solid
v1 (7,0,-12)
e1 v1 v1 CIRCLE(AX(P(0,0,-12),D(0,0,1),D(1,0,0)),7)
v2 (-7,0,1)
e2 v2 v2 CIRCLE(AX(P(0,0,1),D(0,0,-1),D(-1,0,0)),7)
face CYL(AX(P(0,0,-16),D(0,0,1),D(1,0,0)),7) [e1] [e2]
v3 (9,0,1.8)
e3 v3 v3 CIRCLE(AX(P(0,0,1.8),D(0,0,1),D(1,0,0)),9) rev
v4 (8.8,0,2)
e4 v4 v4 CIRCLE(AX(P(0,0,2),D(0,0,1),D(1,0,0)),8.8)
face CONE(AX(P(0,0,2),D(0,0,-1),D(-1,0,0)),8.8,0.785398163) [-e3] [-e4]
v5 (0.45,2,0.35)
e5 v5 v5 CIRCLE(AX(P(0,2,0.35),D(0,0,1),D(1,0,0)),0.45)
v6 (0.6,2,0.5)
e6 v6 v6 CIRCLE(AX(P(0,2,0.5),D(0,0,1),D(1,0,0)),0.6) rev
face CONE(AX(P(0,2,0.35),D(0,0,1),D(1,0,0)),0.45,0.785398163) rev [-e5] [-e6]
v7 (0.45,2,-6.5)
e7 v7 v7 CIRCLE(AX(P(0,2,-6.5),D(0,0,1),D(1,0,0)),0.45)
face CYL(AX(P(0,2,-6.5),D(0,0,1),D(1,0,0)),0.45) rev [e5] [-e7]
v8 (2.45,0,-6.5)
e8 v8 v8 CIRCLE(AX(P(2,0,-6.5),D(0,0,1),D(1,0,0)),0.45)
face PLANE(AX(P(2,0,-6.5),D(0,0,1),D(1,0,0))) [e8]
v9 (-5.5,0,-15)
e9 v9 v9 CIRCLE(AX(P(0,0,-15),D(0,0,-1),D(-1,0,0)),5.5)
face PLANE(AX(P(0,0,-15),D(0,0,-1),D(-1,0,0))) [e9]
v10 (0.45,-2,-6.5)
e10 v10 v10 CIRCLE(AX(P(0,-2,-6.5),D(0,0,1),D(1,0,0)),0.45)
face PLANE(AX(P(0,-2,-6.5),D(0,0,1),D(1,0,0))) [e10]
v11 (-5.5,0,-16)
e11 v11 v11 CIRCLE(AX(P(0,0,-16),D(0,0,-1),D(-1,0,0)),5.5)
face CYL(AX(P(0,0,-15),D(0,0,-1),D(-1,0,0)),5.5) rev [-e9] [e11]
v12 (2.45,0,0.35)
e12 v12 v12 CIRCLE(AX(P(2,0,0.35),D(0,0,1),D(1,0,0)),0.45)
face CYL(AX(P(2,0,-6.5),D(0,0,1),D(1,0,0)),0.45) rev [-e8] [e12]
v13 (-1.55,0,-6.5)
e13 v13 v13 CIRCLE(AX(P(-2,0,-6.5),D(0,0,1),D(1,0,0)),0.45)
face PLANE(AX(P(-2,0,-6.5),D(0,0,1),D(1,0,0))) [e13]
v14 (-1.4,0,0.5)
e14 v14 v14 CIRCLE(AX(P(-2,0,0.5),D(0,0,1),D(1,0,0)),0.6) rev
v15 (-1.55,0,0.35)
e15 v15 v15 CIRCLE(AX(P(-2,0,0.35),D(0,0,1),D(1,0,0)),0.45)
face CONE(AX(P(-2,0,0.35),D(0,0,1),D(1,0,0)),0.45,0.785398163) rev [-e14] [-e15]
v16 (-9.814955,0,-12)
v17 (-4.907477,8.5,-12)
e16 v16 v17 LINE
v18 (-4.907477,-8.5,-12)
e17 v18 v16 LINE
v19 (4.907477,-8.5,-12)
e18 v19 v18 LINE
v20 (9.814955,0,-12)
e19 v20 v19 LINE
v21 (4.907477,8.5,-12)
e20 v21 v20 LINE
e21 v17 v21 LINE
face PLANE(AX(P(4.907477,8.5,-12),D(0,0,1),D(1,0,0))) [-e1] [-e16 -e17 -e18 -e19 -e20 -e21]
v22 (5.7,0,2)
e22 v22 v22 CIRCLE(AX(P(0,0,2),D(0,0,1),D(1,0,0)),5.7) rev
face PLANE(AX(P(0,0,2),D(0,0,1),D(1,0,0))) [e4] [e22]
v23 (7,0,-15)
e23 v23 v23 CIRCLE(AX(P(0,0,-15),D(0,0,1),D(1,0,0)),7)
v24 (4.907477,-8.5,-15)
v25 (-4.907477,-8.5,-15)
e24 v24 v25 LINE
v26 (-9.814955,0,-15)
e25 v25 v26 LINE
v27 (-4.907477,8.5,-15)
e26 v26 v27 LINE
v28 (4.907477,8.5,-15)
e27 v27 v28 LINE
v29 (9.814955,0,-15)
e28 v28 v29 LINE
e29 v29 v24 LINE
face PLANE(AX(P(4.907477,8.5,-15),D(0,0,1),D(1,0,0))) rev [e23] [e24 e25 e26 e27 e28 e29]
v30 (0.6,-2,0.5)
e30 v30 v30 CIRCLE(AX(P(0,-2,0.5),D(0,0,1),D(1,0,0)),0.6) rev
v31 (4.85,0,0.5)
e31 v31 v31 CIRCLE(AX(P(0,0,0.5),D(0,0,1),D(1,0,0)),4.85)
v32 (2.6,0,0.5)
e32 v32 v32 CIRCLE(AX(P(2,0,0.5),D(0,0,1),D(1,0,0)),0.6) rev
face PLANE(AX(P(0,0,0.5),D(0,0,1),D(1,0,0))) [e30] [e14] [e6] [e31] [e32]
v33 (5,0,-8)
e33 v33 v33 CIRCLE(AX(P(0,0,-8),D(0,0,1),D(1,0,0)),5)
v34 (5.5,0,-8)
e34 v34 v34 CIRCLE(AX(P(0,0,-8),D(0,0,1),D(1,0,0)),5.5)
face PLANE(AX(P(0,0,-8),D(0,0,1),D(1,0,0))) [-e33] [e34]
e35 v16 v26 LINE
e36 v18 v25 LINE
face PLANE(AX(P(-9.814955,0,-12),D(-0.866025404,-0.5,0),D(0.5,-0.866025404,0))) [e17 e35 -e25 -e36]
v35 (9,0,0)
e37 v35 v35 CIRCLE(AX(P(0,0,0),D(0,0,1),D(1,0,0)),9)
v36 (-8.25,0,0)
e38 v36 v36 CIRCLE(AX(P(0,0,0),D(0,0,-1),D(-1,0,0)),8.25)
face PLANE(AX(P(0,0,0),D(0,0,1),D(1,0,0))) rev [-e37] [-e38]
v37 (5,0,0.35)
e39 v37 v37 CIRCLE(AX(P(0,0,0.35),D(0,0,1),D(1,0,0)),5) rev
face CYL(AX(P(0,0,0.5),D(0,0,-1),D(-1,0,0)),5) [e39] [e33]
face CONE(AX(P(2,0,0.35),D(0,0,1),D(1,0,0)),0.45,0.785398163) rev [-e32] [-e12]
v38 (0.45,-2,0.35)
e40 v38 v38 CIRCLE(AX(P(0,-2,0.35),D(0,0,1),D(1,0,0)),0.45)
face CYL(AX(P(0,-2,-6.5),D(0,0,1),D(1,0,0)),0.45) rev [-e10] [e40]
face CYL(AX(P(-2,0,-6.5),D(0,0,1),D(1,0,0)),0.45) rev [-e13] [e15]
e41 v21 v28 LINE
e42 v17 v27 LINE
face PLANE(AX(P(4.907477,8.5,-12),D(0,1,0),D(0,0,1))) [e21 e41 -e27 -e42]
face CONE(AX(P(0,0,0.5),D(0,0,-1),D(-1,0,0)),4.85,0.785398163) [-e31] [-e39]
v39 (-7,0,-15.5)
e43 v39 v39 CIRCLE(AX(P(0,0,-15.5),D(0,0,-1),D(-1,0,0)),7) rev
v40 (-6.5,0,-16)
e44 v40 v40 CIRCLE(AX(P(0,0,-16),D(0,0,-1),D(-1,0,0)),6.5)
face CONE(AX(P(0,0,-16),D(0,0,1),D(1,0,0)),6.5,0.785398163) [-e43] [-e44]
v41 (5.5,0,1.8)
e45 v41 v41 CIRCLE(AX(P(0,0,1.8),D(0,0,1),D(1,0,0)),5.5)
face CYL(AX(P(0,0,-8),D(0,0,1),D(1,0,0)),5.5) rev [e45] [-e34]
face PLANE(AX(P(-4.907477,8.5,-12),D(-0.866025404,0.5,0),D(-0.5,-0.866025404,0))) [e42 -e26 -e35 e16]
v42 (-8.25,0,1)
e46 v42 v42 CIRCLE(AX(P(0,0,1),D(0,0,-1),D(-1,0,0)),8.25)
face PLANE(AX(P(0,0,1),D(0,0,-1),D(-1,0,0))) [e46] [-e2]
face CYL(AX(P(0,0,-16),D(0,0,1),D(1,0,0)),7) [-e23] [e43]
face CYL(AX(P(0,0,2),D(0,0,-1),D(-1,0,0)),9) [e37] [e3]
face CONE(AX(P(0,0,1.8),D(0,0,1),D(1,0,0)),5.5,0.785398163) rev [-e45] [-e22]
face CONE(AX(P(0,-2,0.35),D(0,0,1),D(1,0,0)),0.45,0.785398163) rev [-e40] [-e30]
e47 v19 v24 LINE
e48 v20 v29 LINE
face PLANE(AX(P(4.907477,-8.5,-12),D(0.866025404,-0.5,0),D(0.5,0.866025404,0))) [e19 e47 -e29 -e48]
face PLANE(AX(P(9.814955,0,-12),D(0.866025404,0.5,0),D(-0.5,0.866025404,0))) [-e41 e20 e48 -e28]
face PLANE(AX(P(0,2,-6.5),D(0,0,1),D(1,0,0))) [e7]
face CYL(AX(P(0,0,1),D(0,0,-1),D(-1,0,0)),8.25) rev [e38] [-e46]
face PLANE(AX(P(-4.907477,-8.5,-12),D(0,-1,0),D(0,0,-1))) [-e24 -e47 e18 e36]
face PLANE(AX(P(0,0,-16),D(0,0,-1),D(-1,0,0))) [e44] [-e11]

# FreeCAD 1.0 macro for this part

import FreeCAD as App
import Part
import Sketcher

V = App.Vector
Q = App.Units.Quantity


def edges_at(feature, points):
    """Names of the edges that pass closest to the given points."""
    edges = feature.Shape.Edges
    near = lambda p: min(range(len(edges)), key=lambda i: edges[i].distToShape(Part.Vertex(*p))[0])
    return sorted({f"Edge{near(p) + 1}" for p in points})


def add_polygon(sketch, points):
    """Adds a closed chain of lines whose ends are joined by coincident constraints."""
    first, n = sketch.GeometryCount, len(points)
    for a, b in zip(points, points[1:] + points[:1]):
        sketch.addGeometry(Part.LineSegment(App.Vector(*a, 0), App.Vector(*b, 0)), False)
    for i in range(n):
        sketch.addConstraint(Sketcher.Constraint("Coincident", first + i, 2, first + (i + 1) % n, 1))

doc = App.newDocument("Part")
body = doc.addObject("PartDesign::Body", "Body")

sketch1 = body.newObject("Sketcher::SketchObject", "Sketch")
sketch1.AttachmentSupport = (doc.getObject("XY_Plane"), [""])
sketch1.MapMode = "FlatFace"
sketch1.addGeometry(Part.Circle(V(0, 0, 0), V(0, 0, 1), 9), False)
sketch1.addConstraint([
    Sketcher.Constraint("Coincident", 0, 3, -1, 1),
    Sketcher.Constraint("Diameter", 0, 18.0),
])
pad1 = body.newObject("PartDesign::Pad", "Pad")
pad1.Profile = sketch1
pad1.Length = 2

sketch2 = body.newObject("Sketcher::SketchObject", "Sketch001")
sketch2.AttachmentSupport = (doc.getObject("XY_Plane"), [""])
sketch2.MapMode = "FlatFace"
sketch2.addGeometry(Part.Circle(V(0, 0, 0), V(0, 0, 1), 7), False)
sketch2.addConstraint([
    Sketcher.Constraint("Coincident", 0, 3, -1, 1),
    Sketcher.Constraint("Diameter", 0, 14.0),
])
pad2 = body.newObject("PartDesign::Pad", "Pad001")
pad2.Profile = sketch2
pad2.Length = 16
pad2.Reversed = True

sketch3 = body.newObject("Sketcher::SketchObject", "Sketch002")
sketch3.AttachmentSupport = (doc.getObject("XY_Plane"), [""])
sketch3.MapMode = "FlatFace"
sketch3.AttachmentOffset = App.Placement(V(0, 0, 2), App.Rotation())
sketch3.addGeometry(Part.Circle(V(0, 0, 0), V(0, 0, 1), 5.5), False)
sketch3.addConstraint([
    Sketcher.Constraint("Coincident", 0, 3, -1, 1),
    Sketcher.Constraint("Diameter", 0, 11.0),
])
pocket1 = body.newObject("PartDesign::Pocket", "Pocket")
pocket1.Profile = sketch3
pocket1.Length = 10

sketch4 = body.newObject("Sketcher::SketchObject", "Sketch003")
sketch4.AttachmentSupport = (doc.getObject("XY_Plane"), [""])
sketch4.MapMode = "FlatFace"
sketch4.addGeometry([
    Part.Circle(V(0, 0, 0), V(0, 0, 1), 8.25),
    Part.Circle(V(0, 0, 0), V(0, 0, 1), 7),
], False)
sketch4.addConstraint([
    Sketcher.Constraint("Coincident", 0, 3, -1, 1),
    Sketcher.Constraint("Coincident", 1, 3, -1, 1),
    Sketcher.Constraint("Diameter", 1, 14.0),
    Sketcher.Constraint("Diameter", 0, 16.5),
])
pocket2 = body.newObject("PartDesign::Pocket", "Pocket001")
pocket2.Profile = sketch4
pocket2.Length = 1
pocket2.Reversed = True

sketch5 = body.newObject("Sketcher::SketchObject", "Sketch004")
sketch5.AttachmentSupport = (doc.getObject("XY_Plane"), [""])
sketch5.MapMode = "FlatFace"
sketch5.AttachmentOffset = App.Placement(V(0, 0, -8), App.Rotation())
sketch5.addGeometry(Part.Circle(V(0, 0, 0), V(0, 0, 1), 5), False)
sketch5.addConstraint([
    Sketcher.Constraint("Coincident", 0, 3, -1, 1),
    Sketcher.Constraint("Diameter", 0, 10.0),
])
pad3 = body.newObject("PartDesign::Pad", "Pad002")
pad3.Profile = sketch5
pad3.Length = 8.5

sketch6 = body.newObject("Sketcher::SketchObject", "Sketch005")
sketch6.AttachmentSupport = (doc.getObject("XY_Plane"), [""])
sketch6.MapMode = "FlatFace"
sketch6.AttachmentOffset = App.Placement(V(0, 0, 0.5), App.Rotation())
sketch6.addGeometry([
    Part.Circle(V(0, 2, 0), V(0, 0, 1), 0.45),
    Part.Circle(V(0, -2, 0), V(0, 0, 1), 0.45),
    Part.Circle(V(2, 0, 0), V(0, 0, 1), 0.45),
    Part.Circle(V(-2, 0, 0), V(0, 0, 1), 0.45),
], False)
sketch6.addConstraint([
    Sketcher.Constraint("Equal", 0, 1),
    Sketcher.Constraint("Equal", 1, 2),
    Sketcher.Constraint("Equal", 2, 3),
    Sketcher.Constraint("Symmetric", 0, 3, 1, 3, -1, 1),
    Sketcher.Constraint("Symmetric", 2, 3, 3, 3, -1, 1),
    Sketcher.Constraint("PointOnObject", 0, 3, -2),
    Sketcher.Constraint("PointOnObject", 2, 3, -1),
    Sketcher.Constraint("Diameter", 0, 0.9),
    Sketcher.Constraint("DistanceY", -1, 1, 0, 3, 2.0),
    Sketcher.Constraint("DistanceX", -1, 1, 2, 3, 2.0),
])
pocket3 = body.newObject("PartDesign::Pocket", "Pocket002")
pocket3.Profile = sketch6
pocket3.Length = 7
doc.recompute()

chamfer = body.newObject("PartDesign::Chamfer", "Chamfer")
chamfer.Base = (pocket3, edges_at(pocket3, [
    (-5, 0, 0.5),
    (-0.45, 2, 0.5),
    (-0.45, -2, 0.5),
    (1.55, 0, 0.5),
    (-2.45, 0, 0.5),
]))
chamfer.Size = 0.15
doc.recompute()

chamfer2 = body.newObject("PartDesign::Chamfer", "Chamfer001")
chamfer2.Base = (chamfer, edges_at(chamfer, [(-5.5, 0, 2), (-9, 0, 2)]))
chamfer2.Size = 0.2

sketch7 = body.newObject("Sketcher::SketchObject", "Sketch006")
sketch7.AttachmentSupport = (doc.getObject("XY_Plane"), [""])
sketch7.MapMode = "FlatFace"
sketch7.AttachmentOffset = App.Placement(V(0, 0, -16), App.Rotation())
sketch7.addGeometry(Part.Circle(V(0, 0, 0), V(0, 0, 1), 5.5), False)
sketch7.addConstraint([
    Sketcher.Constraint("Coincident", 0, 3, -1, 1),
    Sketcher.Constraint("Diameter", 0, 11.0),
])
pocket4 = body.newObject("PartDesign::Pocket", "Pocket003")
pocket4.Profile = sketch7
pocket4.Length = 1
pocket4.Reversed = True
doc.recompute()

chamfer3 = body.newObject("PartDesign::Chamfer", "Chamfer002")
chamfer3.Base = (pocket4, edges_at(pocket4, [(7, 0, -16)]))
chamfer3.Size = 0.5

sketch8 = body.newObject("Sketcher::SketchObject", "Sketch007")
sketch8.AttachmentSupport = (doc.getObject("XY_Plane"), [""])
sketch8.MapMode = "FlatFace"
sketch8.AttachmentOffset = App.Placement(V(0, 0, -15), App.Rotation())
add_polygon(sketch8, [(-4.907477, 8.5), (4.907477, 8.5), (9.814955, 0), (4.907477, -8.5), (-4.907477, -8.5), (-9.814955, 0)])
sketch8.addConstraint([
    Sketcher.Constraint("Horizontal", 0),
    Sketcher.Constraint("Horizontal", 3),
    Sketcher.Constraint("Symmetric", 0, 2, 3, 2, -1, 1),
    Sketcher.Constraint("Symmetric", 1, 2, 4, 2, -1, 1),
    Sketcher.Constraint("PointOnObject", 1, 2, -1),
    Sketcher.Constraint("Parallel", 2, 5),
    Sketcher.Constraint("Vertical", 0, 2, 2, 2),
    Sketcher.Constraint("Angle", 1, Q("-60 deg")),
    Sketcher.Constraint("DistanceY", 2, 2, 0, 2, 17.0),
    Sketcher.Constraint("DistanceX", 0, 1, 0, 2, 9.814955),
])
pad4 = body.newObject("PartDesign::Pad", "Pad003")
pad4.Profile = sketch8
pad4.Length = 3

doc.recompute()
